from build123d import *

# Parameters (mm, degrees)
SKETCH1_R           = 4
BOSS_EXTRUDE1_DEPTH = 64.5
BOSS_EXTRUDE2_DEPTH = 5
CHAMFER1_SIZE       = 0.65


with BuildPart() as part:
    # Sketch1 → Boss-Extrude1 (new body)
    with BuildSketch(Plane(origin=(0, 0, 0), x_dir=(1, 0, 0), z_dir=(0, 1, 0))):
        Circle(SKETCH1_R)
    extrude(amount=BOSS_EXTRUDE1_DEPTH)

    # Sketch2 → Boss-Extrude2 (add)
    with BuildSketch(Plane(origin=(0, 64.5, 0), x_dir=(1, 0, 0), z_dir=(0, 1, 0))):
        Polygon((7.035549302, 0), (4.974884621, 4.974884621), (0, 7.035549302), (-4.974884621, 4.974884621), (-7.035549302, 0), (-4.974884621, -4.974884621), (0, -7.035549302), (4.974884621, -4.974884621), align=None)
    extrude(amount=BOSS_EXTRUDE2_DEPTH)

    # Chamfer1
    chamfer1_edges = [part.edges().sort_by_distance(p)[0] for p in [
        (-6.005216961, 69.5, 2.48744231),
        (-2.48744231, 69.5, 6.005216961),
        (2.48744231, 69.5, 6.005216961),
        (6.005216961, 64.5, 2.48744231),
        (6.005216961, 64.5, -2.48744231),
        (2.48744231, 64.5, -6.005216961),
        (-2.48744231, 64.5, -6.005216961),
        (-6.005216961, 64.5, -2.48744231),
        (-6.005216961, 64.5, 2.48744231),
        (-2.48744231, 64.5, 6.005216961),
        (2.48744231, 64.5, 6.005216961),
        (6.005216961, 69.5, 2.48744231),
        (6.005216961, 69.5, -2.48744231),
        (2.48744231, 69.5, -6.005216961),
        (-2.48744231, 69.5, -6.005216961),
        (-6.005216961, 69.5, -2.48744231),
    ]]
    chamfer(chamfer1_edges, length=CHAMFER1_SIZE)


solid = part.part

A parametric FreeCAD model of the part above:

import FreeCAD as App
import Part
import Sketcher
from FreeCAD import Vector
Q = App.Units.Quantity


def edges_at(feature, points):
    """Names of the edges that pass closest to the given points."""
    edges = feature.Shape.Edges
    near = lambda p: min(range(len(edges)), key=lambda i: edges[i].distToShape(Part.Vertex(*p))[0])
    return sorted({f"Edge{near(p) + 1}" for p in points})


def add_polygon(sketch, points):
    """Adds a closed chain of lines whose ends are joined by coincident constraints."""
    first, n = sketch.GeometryCount, len(points)
    for a, b in zip(points, points[1:] + points[:1]):
        sketch.addGeometry(Part.LineSegment(App.Vector(*a, 0), App.Vector(*b, 0)), False)
    for i in range(n):
        sketch.addConstraint(Sketcher.Constraint("Coincident", first + i, 2, first + (i + 1) % n, 1))

doc = App.newDocument("Part")
params = doc.addObject("Spreadsheet::Sheet", "Params")
for row, (alias, value) in enumerate([
    ("sketch1_diameter", "8 mm"),
    ("pad1_length", "64.5 mm"),
    ("pad2_length", "5 mm"),
    ("chamfer_size", "0.65 mm"),
], start=1):
    params.set(f"A{row}", alias)
    params.set(f"B{row}", "=" + value)
    params.setAlias(f"B{row}", alias)

body = doc.addObject("PartDesign::Body", "Body")

# Sketch on XZ plane
sketch1 = doc.addObject("Sketcher::SketchObject", "Sketch")
body.addObject(sketch1)
sketch1.AttachmentSupport = (doc.XZ_Plane, [""])
sketch1.MapMode = "FlatFace"
sketch1.addGeometry(Part.Circle(Vector(0, 0, 0), Vector(0, 0, 1), 4), False)
sketch1.addConstraint([
    Sketcher.Constraint("Coincident", 0, 3, -1, 1),
    Sketcher.Constraint("Diameter", 0, 8.0),
])
sketch1.setExpression("Constraints[1]", "Params.sketch1_diameter")
pad1 = doc.addObject("PartDesign::Pad", "Pad")
body.addObject(pad1)
pad1.Profile = sketch1
pad1.setExpression("Length", "Params.pad1_length")
pad1.Reversed = True

# Sketch on XZ plane
sketch2 = doc.addObject("Sketcher::SketchObject", "Sketch001")
body.addObject(sketch2)
sketch2.AttachmentSupport = (doc.XZ_Plane, [""])
sketch2.MapMode = "FlatFace"
sketch2.AttachmentOffset = App.Placement(Vector(0, 0, -64.5), App.Rotation())
add_polygon(sketch2, [(7, 0), (5, -5), (0, -7), (-5, -5), (-7, 0), (-5, 5), (0, 7), (5, 5)])  # lines 0-7
sketch2.addConstraint([
    Sketcher.Constraint("Symmetric", 0, 2, 4, 2, -1, 1),
    Sketcher.Constraint("Symmetric", 1, 2, 5, 2, -1, 1),
    Sketcher.Constraint("Symmetric", 2, 2, 6, 2, -1, 1),
    Sketcher.Constraint("Symmetric", 3, 2, 7, 2, -1, 1),
    Sketcher.Constraint("Symmetric", 0, 2, 2, 2, -2),
    Sketcher.Constraint("PointOnObject", 1, 2, -2),
    Sketcher.Constraint("PointOnObject", 3, 2, -1),
    Sketcher.Constraint("Perpendicular", 0, 2),
    Sketcher.Constraint("Equal", 0, 1),
    Sketcher.Constraint("Angle", 0, Q("-112.5 deg")),
    Sketcher.Constraint("DistanceY", 1, 2, 5, 2, 14.071099),
])
pad2 = doc.addObject("PartDesign::Pad", "Pad001")
body.addObject(pad2)
pad2.Profile = sketch2
pad2.setExpression("Length", "Params.pad2_length")
pad2.Reversed = True
doc.recompute()

chamfer = doc.addObject("PartDesign::Chamfer", "Chamfer")
body.addObject(chamfer)
chamfer.Base = (pad2, edges_at(pad2, [
    (-6.005, 69.5, 2.487),
    (-2.487, 69.5, 6.005),
    (2.487, 69.5, 6.005),
    (6.005, 64.5, 2.487),
    (6.005, 64.5, -2.487),
    (2.487, 64.5, -6.005),
    (-2.487, 64.5, -6.005),
    (-6.005, 64.5, -2.487),
    (-6.005, 64.5, 2.487),
    (-2.487, 64.5, 6.005),
    (2.487, 64.5, 6.005),
    (6.005, 69.5, 2.487),
    (6.005, 69.5, -2.487),
    (2.487, 69.5, -6.005),
    (-2.487, 69.5, -6.005),
    (-6.005, 69.5, -2.487),
]))
chamfer.setExpression("Size", "Params.chamfer_size")

doc.recompute()
